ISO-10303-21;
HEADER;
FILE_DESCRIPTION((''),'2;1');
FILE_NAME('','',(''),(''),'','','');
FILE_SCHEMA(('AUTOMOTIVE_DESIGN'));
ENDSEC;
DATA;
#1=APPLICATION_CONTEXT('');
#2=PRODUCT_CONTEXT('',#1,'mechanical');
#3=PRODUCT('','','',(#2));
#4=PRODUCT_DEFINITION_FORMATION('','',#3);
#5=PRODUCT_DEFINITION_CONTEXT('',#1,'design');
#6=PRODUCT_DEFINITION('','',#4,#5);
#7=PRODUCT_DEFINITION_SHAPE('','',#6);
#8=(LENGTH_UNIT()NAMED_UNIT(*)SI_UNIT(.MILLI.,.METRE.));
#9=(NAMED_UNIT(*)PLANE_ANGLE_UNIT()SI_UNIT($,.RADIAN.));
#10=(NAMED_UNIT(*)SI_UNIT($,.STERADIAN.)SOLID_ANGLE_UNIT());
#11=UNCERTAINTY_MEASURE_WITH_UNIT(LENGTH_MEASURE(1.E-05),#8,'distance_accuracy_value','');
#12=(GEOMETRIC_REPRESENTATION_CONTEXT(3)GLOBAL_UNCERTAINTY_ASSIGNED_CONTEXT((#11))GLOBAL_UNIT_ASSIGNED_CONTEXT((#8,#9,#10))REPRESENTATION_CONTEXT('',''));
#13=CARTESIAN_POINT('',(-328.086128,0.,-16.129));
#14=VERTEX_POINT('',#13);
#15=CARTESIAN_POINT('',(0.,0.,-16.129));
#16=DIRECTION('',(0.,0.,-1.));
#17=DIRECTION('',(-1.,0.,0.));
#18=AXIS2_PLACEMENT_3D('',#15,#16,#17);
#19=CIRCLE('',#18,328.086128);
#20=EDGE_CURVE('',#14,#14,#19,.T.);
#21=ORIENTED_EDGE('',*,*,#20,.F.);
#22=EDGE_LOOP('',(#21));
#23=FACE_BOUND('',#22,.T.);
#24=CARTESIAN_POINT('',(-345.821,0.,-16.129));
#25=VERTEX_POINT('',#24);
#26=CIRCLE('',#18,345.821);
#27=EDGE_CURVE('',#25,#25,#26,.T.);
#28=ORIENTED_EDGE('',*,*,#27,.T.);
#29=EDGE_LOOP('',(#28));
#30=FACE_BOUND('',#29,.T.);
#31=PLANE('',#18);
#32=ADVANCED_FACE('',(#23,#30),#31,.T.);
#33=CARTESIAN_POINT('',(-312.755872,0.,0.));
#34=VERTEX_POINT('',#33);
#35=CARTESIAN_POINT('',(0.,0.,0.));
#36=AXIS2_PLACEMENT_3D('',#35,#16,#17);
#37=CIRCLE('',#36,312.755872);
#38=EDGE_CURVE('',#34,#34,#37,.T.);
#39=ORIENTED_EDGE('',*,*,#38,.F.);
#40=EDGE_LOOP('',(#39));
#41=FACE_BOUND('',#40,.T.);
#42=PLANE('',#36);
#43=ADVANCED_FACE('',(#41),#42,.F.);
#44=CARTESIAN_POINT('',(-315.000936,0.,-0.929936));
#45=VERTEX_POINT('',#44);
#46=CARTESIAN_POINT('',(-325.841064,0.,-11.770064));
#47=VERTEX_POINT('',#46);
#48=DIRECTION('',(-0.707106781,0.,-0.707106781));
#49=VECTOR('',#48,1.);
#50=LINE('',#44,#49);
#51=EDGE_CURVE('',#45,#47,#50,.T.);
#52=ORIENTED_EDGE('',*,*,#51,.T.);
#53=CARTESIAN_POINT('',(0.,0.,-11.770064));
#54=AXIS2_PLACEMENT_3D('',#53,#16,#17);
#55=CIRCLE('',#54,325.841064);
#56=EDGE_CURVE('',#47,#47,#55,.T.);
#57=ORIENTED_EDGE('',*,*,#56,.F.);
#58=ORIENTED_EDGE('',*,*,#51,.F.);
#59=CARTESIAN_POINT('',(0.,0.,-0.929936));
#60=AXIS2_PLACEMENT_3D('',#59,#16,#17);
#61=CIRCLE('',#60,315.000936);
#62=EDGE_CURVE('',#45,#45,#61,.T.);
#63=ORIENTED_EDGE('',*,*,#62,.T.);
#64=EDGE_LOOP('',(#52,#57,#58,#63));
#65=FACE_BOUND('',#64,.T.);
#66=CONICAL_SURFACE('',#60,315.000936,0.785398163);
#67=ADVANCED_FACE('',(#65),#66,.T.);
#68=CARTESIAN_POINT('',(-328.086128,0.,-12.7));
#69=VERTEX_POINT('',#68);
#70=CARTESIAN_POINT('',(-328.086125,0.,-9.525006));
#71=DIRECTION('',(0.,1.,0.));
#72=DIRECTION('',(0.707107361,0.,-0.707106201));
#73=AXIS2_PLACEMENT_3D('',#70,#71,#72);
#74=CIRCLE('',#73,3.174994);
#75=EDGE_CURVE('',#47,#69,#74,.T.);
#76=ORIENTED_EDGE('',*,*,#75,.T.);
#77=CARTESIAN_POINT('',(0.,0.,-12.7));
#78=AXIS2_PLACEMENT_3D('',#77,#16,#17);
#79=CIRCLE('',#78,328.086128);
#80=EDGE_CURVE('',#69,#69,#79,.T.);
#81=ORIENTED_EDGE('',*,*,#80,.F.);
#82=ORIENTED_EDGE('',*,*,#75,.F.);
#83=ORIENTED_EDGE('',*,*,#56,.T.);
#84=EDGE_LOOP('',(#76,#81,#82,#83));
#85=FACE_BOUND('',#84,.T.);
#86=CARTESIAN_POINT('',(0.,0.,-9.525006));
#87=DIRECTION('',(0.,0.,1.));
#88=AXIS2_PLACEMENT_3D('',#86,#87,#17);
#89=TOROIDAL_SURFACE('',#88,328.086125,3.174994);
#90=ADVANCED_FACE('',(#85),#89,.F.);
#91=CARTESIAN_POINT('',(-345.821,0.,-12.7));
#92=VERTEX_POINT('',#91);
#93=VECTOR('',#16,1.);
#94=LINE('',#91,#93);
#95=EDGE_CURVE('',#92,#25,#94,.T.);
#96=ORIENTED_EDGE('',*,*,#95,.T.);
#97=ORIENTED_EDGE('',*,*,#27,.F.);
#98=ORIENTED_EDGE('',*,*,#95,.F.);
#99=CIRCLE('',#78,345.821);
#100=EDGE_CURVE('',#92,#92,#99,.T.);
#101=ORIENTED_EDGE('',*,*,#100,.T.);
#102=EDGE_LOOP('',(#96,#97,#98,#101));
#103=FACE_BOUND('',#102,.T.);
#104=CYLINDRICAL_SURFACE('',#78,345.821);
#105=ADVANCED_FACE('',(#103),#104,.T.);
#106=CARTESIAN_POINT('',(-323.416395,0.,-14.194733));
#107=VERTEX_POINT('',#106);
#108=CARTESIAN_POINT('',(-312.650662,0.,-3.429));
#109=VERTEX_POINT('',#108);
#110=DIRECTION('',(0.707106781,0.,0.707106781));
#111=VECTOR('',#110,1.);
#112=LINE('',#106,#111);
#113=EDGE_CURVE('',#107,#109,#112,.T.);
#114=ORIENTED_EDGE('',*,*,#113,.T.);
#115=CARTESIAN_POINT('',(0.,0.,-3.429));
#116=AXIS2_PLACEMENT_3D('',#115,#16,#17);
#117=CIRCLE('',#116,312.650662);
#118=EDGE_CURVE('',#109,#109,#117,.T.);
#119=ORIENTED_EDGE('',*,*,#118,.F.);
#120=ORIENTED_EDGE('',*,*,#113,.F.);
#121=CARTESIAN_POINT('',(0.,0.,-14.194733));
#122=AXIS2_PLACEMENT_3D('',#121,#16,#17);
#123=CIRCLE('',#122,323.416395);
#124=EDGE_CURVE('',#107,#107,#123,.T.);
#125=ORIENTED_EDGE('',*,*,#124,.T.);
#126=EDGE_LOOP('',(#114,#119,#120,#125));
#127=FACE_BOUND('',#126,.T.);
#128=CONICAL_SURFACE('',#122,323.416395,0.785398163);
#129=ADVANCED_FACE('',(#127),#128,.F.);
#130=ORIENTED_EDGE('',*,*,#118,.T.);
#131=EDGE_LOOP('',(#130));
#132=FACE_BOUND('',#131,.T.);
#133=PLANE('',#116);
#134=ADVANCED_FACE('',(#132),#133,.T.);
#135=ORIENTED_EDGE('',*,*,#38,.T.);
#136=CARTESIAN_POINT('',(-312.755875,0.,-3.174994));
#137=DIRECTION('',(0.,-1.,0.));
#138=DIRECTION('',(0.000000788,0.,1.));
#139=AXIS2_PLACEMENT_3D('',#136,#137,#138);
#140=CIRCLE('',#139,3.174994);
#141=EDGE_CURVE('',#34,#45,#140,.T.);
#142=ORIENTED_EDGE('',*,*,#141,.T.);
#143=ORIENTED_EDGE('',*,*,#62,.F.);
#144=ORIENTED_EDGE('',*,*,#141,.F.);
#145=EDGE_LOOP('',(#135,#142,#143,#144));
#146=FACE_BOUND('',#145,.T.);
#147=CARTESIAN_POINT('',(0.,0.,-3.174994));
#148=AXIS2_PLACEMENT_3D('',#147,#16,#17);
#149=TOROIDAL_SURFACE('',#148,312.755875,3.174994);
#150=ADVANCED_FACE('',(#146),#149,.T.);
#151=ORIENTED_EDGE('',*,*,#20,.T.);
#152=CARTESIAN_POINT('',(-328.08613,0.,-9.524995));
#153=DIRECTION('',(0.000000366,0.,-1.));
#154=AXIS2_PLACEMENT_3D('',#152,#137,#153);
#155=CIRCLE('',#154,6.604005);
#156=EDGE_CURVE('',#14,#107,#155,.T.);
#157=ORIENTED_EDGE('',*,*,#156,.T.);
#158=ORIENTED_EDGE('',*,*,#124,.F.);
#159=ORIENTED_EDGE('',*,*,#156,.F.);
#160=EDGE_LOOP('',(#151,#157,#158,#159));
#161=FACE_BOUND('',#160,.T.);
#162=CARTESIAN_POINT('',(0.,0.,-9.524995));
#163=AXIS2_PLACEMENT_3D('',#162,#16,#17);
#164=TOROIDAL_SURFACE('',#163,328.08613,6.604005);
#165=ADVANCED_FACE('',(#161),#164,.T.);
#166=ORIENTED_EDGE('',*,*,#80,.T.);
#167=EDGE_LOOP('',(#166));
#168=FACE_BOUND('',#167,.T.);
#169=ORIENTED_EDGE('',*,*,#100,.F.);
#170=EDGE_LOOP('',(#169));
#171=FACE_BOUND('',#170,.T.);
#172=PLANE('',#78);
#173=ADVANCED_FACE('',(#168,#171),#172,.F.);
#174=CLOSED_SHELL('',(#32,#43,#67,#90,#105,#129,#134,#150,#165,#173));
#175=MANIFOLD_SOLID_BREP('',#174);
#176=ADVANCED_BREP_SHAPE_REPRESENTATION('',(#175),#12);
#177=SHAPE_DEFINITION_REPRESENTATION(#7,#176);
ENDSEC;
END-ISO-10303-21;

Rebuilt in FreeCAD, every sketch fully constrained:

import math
import FreeCAD as App
import Part
import Sketcher

V = App.Vector
Q = App.Units.Quantity

doc = App.newDocument("Part")
body = doc.addObject("PartDesign::Body", "Body")

# Sketch on XZ plane
sketch1 = body.newObject("Sketcher::SketchObject", "Sketch")
sketch1.AttachmentSupport = (doc.getObject("XZ_Plane"), [""])
sketch1.MapMode = "FlatFace"
sketch1.addGeometry(Part.LineSegment(V(0, -3.4, 0), V(0, 0, 0)), False)
sketch1.addGeometry(Part.LineSegment(V(0, 0, 0), V(-312.8, 0, 0)), False)
sketch1.addGeometry(Part.ArcOfCircle(Part.Circle(V(-312.8, -3.2, 0), V(0, 0, 1), 3.2), math.radians(90), math.radians(135)), False)
sketch1.addGeometry(Part.LineSegment(V(-315, -0.9, 0), V(-325.8, -11.8, 0)), False)
sketch1.addGeometry(Part.ArcOfCircle(Part.Circle(V(-328.1, -9.5, 0), V(0, 0, 1), 3.2), math.radians(-90), math.radians(-45)), False)
sketch1.addGeometry(Part.LineSegment(V(-328.1, -12.7, 0), V(-345.8, -12.7, 0)), False)
sketch1.addGeometry(Part.LineSegment(V(-345.8, -12.7, 0), V(-345.8, -16.1, 0)), False)
sketch1.addGeometry(Part.LineSegment(V(-345.8, -16.1, 0), V(-328.1, -16.1, 0)), False)
sketch1.addGeometry(Part.ArcOfCircle(Part.Circle(V(-328.1, -9.5, 0), V(0, 0, 1), 6.6), math.radians(-90), math.radians(-45)), False)
sketch1.addGeometry(Part.LineSegment(V(-323.4, -14.2, 0), V(-312.7, -3.4, 0)), False)
sketch1.addGeometry(Part.LineSegment(V(-312.7, -3.4, 0), V(0, -3.4, 0)), False)
sketch1.addConstraint(Sketcher.Constraint("Coincident", 0, 2, 1, 1))
sketch1.addConstraint(Sketcher.Constraint("Tangent", 1, 2, 2, 1))
sketch1.addConstraint(Sketcher.Constraint("Tangent", 2, 2, 3, 1))
sketch1.addConstraint(Sketcher.Constraint("Tangent", 3, 2, 4, 2))
sketch1.addConstraint(Sketcher.Constraint("Tangent", 4, 1, 5, 1))
sketch1.addConstraint(Sketcher.Constraint("Coincident", 5, 2, 6, 1))
sketch1.addConstraint(Sketcher.Constraint("Coincident", 6, 2, 7, 1))
sketch1.addConstraint(Sketcher.Constraint("Tangent", 7, 2, 8, 1))
sketch1.addConstraint(Sketcher.Constraint("Tangent", 8, 2, 9, 1))
sketch1.addConstraint(Sketcher.Constraint("Coincident", 9, 2, 10, 1))
sketch1.addConstraint(Sketcher.Constraint("Coincident", 10, 2, 0, 1))
sketch1.addConstraint(Sketcher.Constraint("Vertical", 0))
sketch1.addConstraint(Sketcher.Constraint("Horizontal", 1))
sketch1.addConstraint(Sketcher.Constraint("Horizontal", 5))
sketch1.addConstraint(Sketcher.Constraint("Vertical", 6))
sketch1.addConstraint(Sketcher.Constraint("Horizontal", 7))
sketch1.addConstraint(Sketcher.Constraint("Horizontal", 10))
sketch1.addConstraint(Sketcher.Constraint("Coincident", 0, 2, -1, 1))
sketch1.addConstraint(Sketcher.Constraint("Equal", 2, 4))
sketch1.addConstraint(Sketcher.Constraint("Parallel", 3, 9))
sketch1.addConstraint(Sketcher.Constraint("Vertical", 4, 1, 7, 2))
sketch1.addConstraint(Sketcher.Constraint("Equal", 0, 6))
sketch1.addConstraint(Sketcher.Constraint("Radius", 8, Q("0.2600002 in")))
sketch1.addConstraint(Sketcher.Constraint("Angle", 3, Q("-135 deg")))
sketch1.addConstraint(Sketcher.Constraint("DistanceY", 4, 1, -1, 1, Q("0.5 in")))
sketch1.addConstraint(Sketcher.Constraint("DistanceY", 0, 1, 0, 2, Q("0.135 in")))
sketch1.addConstraint(Sketcher.Constraint("DistanceY", 8, 3, 2, 3, Q("0.25 in")))
sketch1.addConstraint(Sketcher.Constraint("DistanceX", 5, 2, -1, 1, Q("13.615 in")))
sketch1.addConstraint(Sketcher.Constraint("DistanceX", 1, 2, 1, 1, Q("312.755872 mm")))
revolution = body.newObject("PartDesign::Revolution", "Revolution")
revolution.Profile = sketch1
revolution.ReferenceAxis = (sketch1, ["V_Axis"])
revolution.Angle = 360

doc.recompute()
